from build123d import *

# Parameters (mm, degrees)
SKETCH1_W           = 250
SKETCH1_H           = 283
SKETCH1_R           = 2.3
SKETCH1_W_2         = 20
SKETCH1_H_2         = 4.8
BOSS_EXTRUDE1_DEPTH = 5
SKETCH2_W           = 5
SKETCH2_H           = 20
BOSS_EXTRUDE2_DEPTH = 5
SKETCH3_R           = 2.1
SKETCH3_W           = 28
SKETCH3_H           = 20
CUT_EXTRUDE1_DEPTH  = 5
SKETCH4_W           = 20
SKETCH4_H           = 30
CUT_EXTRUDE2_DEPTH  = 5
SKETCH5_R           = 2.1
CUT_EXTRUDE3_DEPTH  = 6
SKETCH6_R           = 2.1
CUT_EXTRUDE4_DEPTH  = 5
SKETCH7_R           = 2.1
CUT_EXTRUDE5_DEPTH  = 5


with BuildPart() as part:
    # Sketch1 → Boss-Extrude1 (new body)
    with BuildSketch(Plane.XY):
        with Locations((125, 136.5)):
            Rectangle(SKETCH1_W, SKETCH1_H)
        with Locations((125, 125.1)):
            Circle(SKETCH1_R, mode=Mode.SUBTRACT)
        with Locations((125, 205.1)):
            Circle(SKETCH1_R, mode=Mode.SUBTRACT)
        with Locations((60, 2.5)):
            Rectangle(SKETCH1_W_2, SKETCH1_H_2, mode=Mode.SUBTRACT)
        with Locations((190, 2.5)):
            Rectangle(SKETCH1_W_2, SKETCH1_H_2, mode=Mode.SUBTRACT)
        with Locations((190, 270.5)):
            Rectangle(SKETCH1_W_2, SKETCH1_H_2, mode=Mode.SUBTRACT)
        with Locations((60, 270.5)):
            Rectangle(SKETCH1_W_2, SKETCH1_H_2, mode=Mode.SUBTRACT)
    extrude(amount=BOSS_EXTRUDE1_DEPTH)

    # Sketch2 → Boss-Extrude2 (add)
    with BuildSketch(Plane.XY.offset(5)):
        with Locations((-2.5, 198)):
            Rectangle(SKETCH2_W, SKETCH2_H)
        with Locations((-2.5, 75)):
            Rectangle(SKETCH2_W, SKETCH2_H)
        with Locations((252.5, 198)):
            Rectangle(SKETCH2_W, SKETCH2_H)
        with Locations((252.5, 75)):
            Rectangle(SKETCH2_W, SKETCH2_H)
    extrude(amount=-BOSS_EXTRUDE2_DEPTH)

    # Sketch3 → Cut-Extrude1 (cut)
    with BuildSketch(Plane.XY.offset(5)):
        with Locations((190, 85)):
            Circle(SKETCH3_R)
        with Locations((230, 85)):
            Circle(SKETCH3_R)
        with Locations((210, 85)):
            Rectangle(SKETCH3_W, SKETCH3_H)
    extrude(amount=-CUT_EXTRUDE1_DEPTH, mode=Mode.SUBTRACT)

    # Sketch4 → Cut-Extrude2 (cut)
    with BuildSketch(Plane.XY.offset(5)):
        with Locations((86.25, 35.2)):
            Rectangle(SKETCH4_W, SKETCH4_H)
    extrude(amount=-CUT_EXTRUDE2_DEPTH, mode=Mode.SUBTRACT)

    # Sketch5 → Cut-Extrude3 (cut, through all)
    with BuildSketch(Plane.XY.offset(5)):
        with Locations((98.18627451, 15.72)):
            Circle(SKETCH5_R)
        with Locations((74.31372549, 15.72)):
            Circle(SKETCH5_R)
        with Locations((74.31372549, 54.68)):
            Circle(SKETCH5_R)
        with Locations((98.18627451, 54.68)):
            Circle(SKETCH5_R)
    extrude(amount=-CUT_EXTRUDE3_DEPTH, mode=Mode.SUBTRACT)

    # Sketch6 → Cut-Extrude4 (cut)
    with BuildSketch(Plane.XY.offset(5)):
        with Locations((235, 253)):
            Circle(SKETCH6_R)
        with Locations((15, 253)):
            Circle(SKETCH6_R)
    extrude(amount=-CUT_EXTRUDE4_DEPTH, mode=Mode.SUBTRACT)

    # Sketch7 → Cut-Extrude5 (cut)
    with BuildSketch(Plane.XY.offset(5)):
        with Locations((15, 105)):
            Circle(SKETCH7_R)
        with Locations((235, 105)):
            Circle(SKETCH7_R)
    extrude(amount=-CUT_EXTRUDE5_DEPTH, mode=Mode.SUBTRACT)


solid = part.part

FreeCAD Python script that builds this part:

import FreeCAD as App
import Part
import Sketcher
Q = App.Units.Quantity

doc = App.newDocument("Part")
body = doc.addObject("PartDesign::Body", "Body")

# Sketch on XY plane
sketch1 = body.newObject("Sketcher::SketchObject", "Sketch")
sketch1.AttachmentSupport = (doc.getObject("XY_Plane"), [""])
sketch1.MapMode = "FlatFace"
sketch1.addGeometry(Part.LineSegment(App.Vector(0, 278, 0), App.Vector(0, -5, 0)), False)
sketch1.addGeometry(Part.LineSegment(App.Vector(0, -5, 0), App.Vector(250, -5, 0)), False)
sketch1.addGeometry(Part.LineSegment(App.Vector(250, -5, 0), App.Vector(250, 278, 0)), False)
sketch1.addGeometry(Part.LineSegment(App.Vector(250, 278, 0), App.Vector(0, 278, 0)), False)
sketch1.addGeometry(Part.LineSegment(App.Vector(70, 0.1, 0), App.Vector(50, 0.1, 0)), False)
sketch1.addGeometry(Part.LineSegment(App.Vector(50, 0.1, 0), App.Vector(50, 4.9, 0)), False)
sketch1.addGeometry(Part.LineSegment(App.Vector(50, 4.9, 0), App.Vector(70, 4.9, 0)), False)
sketch1.addGeometry(Part.LineSegment(App.Vector(70, 4.9, 0), App.Vector(70, 0.1, 0)), False)
sketch1.addGeometry(Part.LineSegment(App.Vector(200, 0.1, 0), App.Vector(180, 0.1, 0)), False)
sketch1.addGeometry(Part.LineSegment(App.Vector(180, 0.1, 0), App.Vector(180, 4.9, 0)), False)
sketch1.addGeometry(Part.LineSegment(App.Vector(180, 4.9, 0), App.Vector(200, 4.9, 0)), False)
sketch1.addGeometry(Part.LineSegment(App.Vector(200, 4.9, 0), App.Vector(200, 0.1, 0)), False)
sketch1.addGeometry(Part.Circle(App.Vector(125, 125.1, 0), App.Vector(0, 0, 1), 2.3), False)
sketch1.addGeometry(Part.LineSegment(App.Vector(70, 268.1, 0), App.Vector(50, 268.1, 0)), False)
sketch1.addGeometry(Part.LineSegment(App.Vector(50, 268.1, 0), App.Vector(50, 272.9, 0)), False)
sketch1.addGeometry(Part.LineSegment(App.Vector(50, 272.9, 0), App.Vector(70, 272.9, 0)), False)
sketch1.addGeometry(Part.LineSegment(App.Vector(70, 272.9, 0), App.Vector(70, 268.1, 0)), False)
sketch1.addGeometry(Part.Circle(App.Vector(125, 205.1, 0), App.Vector(0, 0, 1), 2.3), False)
sketch1.addGeometry(Part.LineSegment(App.Vector(200, 268.1, 0), App.Vector(180, 268.1, 0)), False)
sketch1.addGeometry(Part.LineSegment(App.Vector(180, 268.1, 0), App.Vector(180, 272.9, 0)), False)
sketch1.addGeometry(Part.LineSegment(App.Vector(180, 272.9, 0), App.Vector(200, 272.9, 0)), False)
sketch1.addGeometry(Part.LineSegment(App.Vector(200, 272.9, 0), App.Vector(200, 268.1, 0)), False)
sketch1.addConstraint(Sketcher.Constraint("Coincident", 0, 2, 1, 1))
sketch1.addConstraint(Sketcher.Constraint("Coincident", 1, 2, 2, 1))
sketch1.addConstraint(Sketcher.Constraint("Coincident", 2, 2, 3, 1))
sketch1.addConstraint(Sketcher.Constraint("Coincident", 3, 2, 0, 1))
sketch1.addConstraint(Sketcher.Constraint("Coincident", 4, 2, 5, 1))
sketch1.addConstraint(Sketcher.Constraint("Coincident", 5, 2, 6, 1))
sketch1.addConstraint(Sketcher.Constraint("Coincident", 6, 2, 7, 1))
sketch1.addConstraint(Sketcher.Constraint("Coincident", 7, 2, 4, 1))
sketch1.addConstraint(Sketcher.Constraint("Coincident", 8, 2, 9, 1))
sketch1.addConstraint(Sketcher.Constraint("Coincident", 9, 2, 10, 1))
sketch1.addConstraint(Sketcher.Constraint("Coincident", 10, 2, 11, 1))
sketch1.addConstraint(Sketcher.Constraint("Coincident", 11, 2, 8, 1))
sketch1.addConstraint(Sketcher.Constraint("Coincident", 13, 2, 14, 1))
sketch1.addConstraint(Sketcher.Constraint("Coincident", 14, 2, 15, 1))
sketch1.addConstraint(Sketcher.Constraint("Coincident", 15, 2, 16, 1))
sketch1.addConstraint(Sketcher.Constraint("Coincident", 16, 2, 13, 1))
sketch1.addConstraint(Sketcher.Constraint("Coincident", 18, 2, 19, 1))
sketch1.addConstraint(Sketcher.Constraint("Coincident", 19, 2, 20, 1))
sketch1.addConstraint(Sketcher.Constraint("Coincident", 20, 2, 21, 1))
sketch1.addConstraint(Sketcher.Constraint("Coincident", 21, 2, 18, 1))
sketch1.addConstraint(Sketcher.Constraint("Vertical", 0))
sketch1.addConstraint(Sketcher.Constraint("Horizontal", 1))
sketch1.addConstraint(Sketcher.Constraint("Vertical", 2))
sketch1.addConstraint(Sketcher.Constraint("Horizontal", 3))
sketch1.addConstraint(Sketcher.Constraint("Horizontal", 4))
sketch1.addConstraint(Sketcher.Constraint("Vertical", 5))
sketch1.addConstraint(Sketcher.Constraint("Horizontal", 6))
sketch1.addConstraint(Sketcher.Constraint("Vertical", 7))
sketch1.addConstraint(Sketcher.Constraint("Horizontal", 8))
sketch1.addConstraint(Sketcher.Constraint("Vertical", 9))
sketch1.addConstraint(Sketcher.Constraint("Horizontal", 10))
sketch1.addConstraint(Sketcher.Constraint("Vertical", 11))
sketch1.addConstraint(Sketcher.Constraint("Horizontal", 13))
sketch1.addConstraint(Sketcher.Constraint("Vertical", 14))
sketch1.addConstraint(Sketcher.Constraint("Horizontal", 15))
sketch1.addConstraint(Sketcher.Constraint("Vertical", 16))
sketch1.addConstraint(Sketcher.Constraint("Horizontal", 18))
sketch1.addConstraint(Sketcher.Constraint("Vertical", 19))
sketch1.addConstraint(Sketcher.Constraint("Horizontal", 20))
sketch1.addConstraint(Sketcher.Constraint("Vertical", 21))
sketch1.addConstraint(Sketcher.Constraint("Equal", 12, 17))
sketch1.addConstraint(Sketcher.Constraint("PointOnObject", 0, 2, -2))
sketch1.addConstraint(Sketcher.Constraint("Horizontal", 7, 2, 8, 2))
sketch1.addConstraint(Sketcher.Constraint("Horizontal", 6, 2, 9, 2))
sketch1.addConstraint(Sketcher.Constraint("Horizontal", 16, 2, 18, 2))
sketch1.addConstraint(Sketcher.Constraint("Horizontal", 15, 2, 19, 2))
sketch1.addConstraint(Sketcher.Constraint("Vertical", 12, 3, 17, 3))
sketch1.addConstraint(Sketcher.Constraint("Vertical", 5, 2, 13, 2))
sketch1.addConstraint(Sketcher.Constraint("Vertical", 7, 2, 15, 2))
sketch1.addConstraint(Sketcher.Constraint("Vertical", 9, 2, 18, 2))
sketch1.addConstraint(Sketcher.Constraint("Vertical", 11, 2, 20, 2))
sketch1.addConstraint(Sketcher.Constraint("Equal", 6, 8))
sketch1.addConstraint(Sketcher.Constraint("Equal", 11, 14))
sketch1.addConstraint(Sketcher.Constraint("Diameter", 12, Q("4.6 mm")))
sketch1.addConstraint(Sketcher.Constraint("DistanceX", 1, 1, 1, 2, Q("250 mm")))
sketch1.addConstraint(Sketcher.Constraint("DistanceX", 4, 2, 4, 1, Q("20 mm")))
sketch1.addConstraint(Sketcher.Constraint("DistanceY", 0, 2, 0, 1, Q("283 mm")))
sketch1.addConstraint(Sketcher.Constraint("DistanceY", 5, 1, 5, 2, Q("4.8 mm")))
sketch1.addConstraint(Sketcher.Constraint("DistanceX", -1, 1, 12, 3, Q("125 mm")))
sketch1.addConstraint(Sketcher.Constraint("DistanceY", 0, 2, -1, 1, Q("5 mm")))
sketch1.addConstraint(Sketcher.Constraint("DistanceX", -1, 1, 4, 2, Q("50 mm")))
sketch1.addConstraint(Sketcher.Constraint("DistanceX", -1, 1, 8, 2, Q("180 mm")))
sketch1.addConstraint(Sketcher.Constraint("DistanceY", 12, 3, 17, 3, Q("80 mm")))
sketch1.addConstraint(Sketcher.Constraint("DistanceY", 4, 2, 12, 3, Q("125 mm")))
sketch1.addConstraint(Sketcher.Constraint("DistanceY", 17, 3, 13, 2, Q("63 mm")))
sketch1.addConstraint(Sketcher.Constraint("DistanceY", -1, 1, 12, 3, Q("125.1 mm")))
pad1 = body.newObject("PartDesign::Pad", "Pad")
pad1.Profile = sketch1
pad1.Length = 5

# Sketch on XY plane
sketch2 = body.newObject("Sketcher::SketchObject", "Sketch001")
sketch2.AttachmentSupport = (doc.getObject("XY_Plane"), [""])
sketch2.MapMode = "FlatFace"
sketch2.AttachmentOffset = App.Placement(App.Vector(0, 0, 5), App.Rotation())
sketch2.addGeometry(Part.LineSegment(App.Vector(-5, 208, 0), App.Vector(-5, 188, 0)), False)
sketch2.addGeometry(Part.LineSegment(App.Vector(-5, 188, 0), App.Vector(0, 188, 0)), False)
sketch2.addGeometry(Part.LineSegment(App.Vector(0, 188, 0), App.Vector(0, 208, 0)), False)
sketch2.addGeometry(Part.LineSegment(App.Vector(0, 208, 0), App.Vector(-5, 208, 0)), False)
sketch2.addGeometry(Part.LineSegment(App.Vector(-5, 85, 0), App.Vector(-5, 65, 0)), False)
sketch2.addGeometry(Part.LineSegment(App.Vector(-5, 65, 0), App.Vector(0, 65, 0)), False)
sketch2.addGeometry(Part.LineSegment(App.Vector(0, 65, 0), App.Vector(0, 85, 0)), False)
sketch2.addGeometry(Part.LineSegment(App.Vector(0, 85, 0), App.Vector(-5, 85, 0)), False)
sketch2.addGeometry(Part.LineSegment(App.Vector(250, 208, 0), App.Vector(250, 188, 0)), False)
sketch2.addGeometry(Part.LineSegment(App.Vector(250, 188, 0), App.Vector(255, 188, 0)), False)
sketch2.addGeometry(Part.LineSegment(App.Vector(255, 188, 0), App.Vector(255, 208, 0)), False)
sketch2.addGeometry(Part.LineSegment(App.Vector(255, 208, 0), App.Vector(250, 208, 0)), False)
sketch2.addGeometry(Part.LineSegment(App.Vector(250, 85, 0), App.Vector(250, 65, 0)), False)
sketch2.addGeometry(Part.LineSegment(App.Vector(250, 65, 0), App.Vector(255, 65, 0)), False)
sketch2.addGeometry(Part.LineSegment(App.Vector(255, 65, 0), App.Vector(255, 85, 0)), False)
sketch2.addGeometry(Part.LineSegment(App.Vector(255, 85, 0), App.Vector(250, 85, 0)), False)
sketch2.addConstraint(Sketcher.Constraint("Coincident", 0, 2, 1, 1))
sketch2.addConstraint(Sketcher.Constraint("Coincident", 1, 2, 2, 1))
sketch2.addConstraint(Sketcher.Constraint("Coincident", 2, 2, 3, 1))
sketch2.addConstraint(Sketcher.Constraint("Coincident", 3, 2, 0, 1))
sketch2.addConstraint(Sketcher.Constraint("Coincident", 4, 2, 5, 1))
sketch2.addConstraint(Sketcher.Constraint("Coincident", 5, 2, 6, 1))
sketch2.addConstraint(Sketcher.Constraint("Coincident", 6, 2, 7, 1))
sketch2.addConstraint(Sketcher.Constraint("Coincident", 7, 2, 4, 1))
sketch2.addConstraint(Sketcher.Constraint("Coincident", 8, 2, 9, 1))
sketch2.addConstraint(Sketcher.Constraint("Coincident", 9, 2, 10, 1))
sketch2.addConstraint(Sketcher.Constraint("Coincident", 10, 2, 11, 1))
sketch2.addConstraint(Sketcher.Constraint("Coincident", 11, 2, 8, 1))
sketch2.addConstraint(Sketcher.Constraint("Coincident", 12, 2, 13, 1))
sketch2.addConstraint(Sketcher.Constraint("Coincident", 13, 2, 14, 1))
sketch2.addConstraint(Sketcher.Constraint("Coincident", 14, 2, 15, 1))
sketch2.addConstraint(Sketcher.Constraint("Coincident", 15, 2, 12, 1))
sketch2.addConstraint(Sketcher.Constraint("Vertical", 0))
sketch2.addConstraint(Sketcher.Constraint("Horizontal", 1))
sketch2.addConstraint(Sketcher.Constraint("Vertical", 2))
sketch2.addConstraint(Sketcher.Constraint("Horizontal", 3))
sketch2.addConstraint(Sketcher.Constraint("Vertical", 4))
sketch2.addConstraint(Sketcher.Constraint("Horizontal", 5))
sketch2.addConstraint(Sketcher.Constraint("Vertical", 6))
sketch2.addConstraint(Sketcher.Constraint("Horizontal", 7))
sketch2.addConstraint(Sketcher.Constraint("Vertical", 8))
sketch2.addConstraint(Sketcher.Constraint("Horizontal", 9))
sketch2.addConstraint(Sketcher.Constraint("Vertical", 10))
sketch2.addConstraint(Sketcher.Constraint("Horizontal", 11))
sketch2.addConstraint(Sketcher.Constraint("Vertical", 12))
sketch2.addConstraint(Sketcher.Constraint("Horizontal", 13))
sketch2.addConstraint(Sketcher.Constraint("Vertical", 14))
sketch2.addConstraint(Sketcher.Constraint("Horizontal", 15))
sketch2.addConstraint(Sketcher.Constraint("PointOnObject", 1, 2, -2))
sketch2.addConstraint(Sketcher.Constraint("PointOnObject", 5, 2, -2))
sketch2.addConstraint(Sketcher.Constraint("Horizontal", 1, 2, 8, 2))
sketch2.addConstraint(Sketcher.Constraint("Horizontal", 3, 2, 10, 2))
sketch2.addConstraint(Sketcher.Constraint("Horizontal", 5, 2, 12, 2))
sketch2.addConstraint(Sketcher.Constraint("Horizontal", 7, 2, 14, 2))
sketch2.addConstraint(Sketcher.Constraint("Vertical", 3, 2, 4, 2))
sketch2.addConstraint(Sketcher.Constraint("Vertical", 11, 2, 12, 2))
sketch2.addConstraint(Sketcher.Constraint("Vertical", 10, 2, 13, 2))
sketch2.addConstraint(Sketcher.Constraint("Equal", 7, 9))
sketch2.addConstraint(Sketcher.Constraint("Equal", 2, 4))
sketch2.addConstraint(Sketcher.Constraint("DistanceX", 1, 1, 1, 2, Q("5 mm")))
sketch2.addConstraint(Sketcher.Constraint("DistanceY", 0, 2, 0, 1, Q("20 mm")))
sketch2.addConstraint(Sketcher.Constraint("DistanceY", -1, 1, 0, 2, Q("188 mm")))
sketch2.addConstraint(Sketcher.Constraint("DistanceY", -1, 1, 4, 2, Q("65 mm")))
sketch2.addConstraint(Sketcher.Constraint("DistanceX", -1, 1, 8, 2, Q("250 mm")))
pad2 = body.newObject("PartDesign::Pad", "Pad001")
pad2.Profile = sketch2
pad2.Length = 5
pad2.Reversed = True

# Sketch on XY plane
sketch3 = body.newObject("Sketcher::SketchObject", "Sketch002")
sketch3.AttachmentSupport = (doc.getObject("XY_Plane"), [""])
sketch3.MapMode = "FlatFace"
sketch3.AttachmentOffset = App.Placement(App.Vector(0, 0, 5), App.Rotation())
sketch3.addGeometry(Part.Circle(App.Vector(190, 85, 0), App.Vector(0, 0, 1), 2.1), False)
sketch3.addGeometry(Part.Circle(App.Vector(230, 85, 0), App.Vector(0, 0, 1), 2.1), False)
sketch3.addGeometry(Part.LineSegment(App.Vector(196, 95, 0), App.Vector(196, 75, 0)), False)
sketch3.addGeometry(Part.LineSegment(App.Vector(196, 75, 0), App.Vector(224, 75, 0)), False)
sketch3.addGeometry(Part.LineSegment(App.Vector(224, 75, 0), App.Vector(224, 95, 0)), False)
sketch3.addGeometry(Part.LineSegment(App.Vector(224, 95, 0), App.Vector(196, 95, 0)), False)
sketch3.addConstraint(Sketcher.Constraint("Coincident", 2, 2, 3, 1))
sketch3.addConstraint(Sketcher.Constraint("Coincident", 3, 2, 4, 1))
sketch3.addConstraint(Sketcher.Constraint("Coincident", 4, 2, 5, 1))
sketch3.addConstraint(Sketcher.Constraint("Coincident", 5, 2, 2, 1))
sketch3.addConstraint(Sketcher.Constraint("Vertical", 2))
sketch3.addConstraint(Sketcher.Constraint("Horizontal", 3))
sketch3.addConstraint(Sketcher.Constraint("Vertical", 4))
sketch3.addConstraint(Sketcher.Constraint("Horizontal", 5))
sketch3.addConstraint(Sketcher.Constraint("Equal", 0, 1))
sketch3.addConstraint(Sketcher.Constraint("Horizontal", 0, 3, 1, 3))
sketch3.addConstraint(Sketcher.Constraint("Diameter", 0, Q("4.2 mm")))
sketch3.addConstraint(Sketcher.Constraint("DistanceX", 3, 1, 3, 2, Q("28 mm")))
sketch3.addConstraint(Sketcher.Constraint("DistanceY", 2, 2, 2, 1, Q("20 mm")))
sketch3.addConstraint(Sketcher.Constraint("DistanceX", -1, 1, 0, 3, Q("190 mm")))
sketch3.addConstraint(Sketcher.Constraint("DistanceY", -1, 1, 0, 3, Q("85 mm")))
sketch3.addConstraint(Sketcher.Constraint("DistanceX", -1, 1, 1, 3, Q("230 mm")))
sketch3.addConstraint(Sketcher.Constraint("DistanceX", -1, 1, 2, 2, Q("196 mm")))
sketch3.addConstraint(Sketcher.Constraint("DistanceY", -1, 1, 2, 2, Q("75 mm")))
pocket1 = body.newObject("PartDesign::Pocket", "Pocket")
pocket1.Profile = sketch3
pocket1.Length = 5

# Sketch on XY plane
sketch4 = body.newObject("Sketcher::SketchObject", "Sketch003")
sketch4.AttachmentSupport = (doc.getObject("XY_Plane"), [""])
sketch4.MapMode = "FlatFace"
sketch4.AttachmentOffset = App.Placement(App.Vector(0, 0, 5), App.Rotation())
sketch4.addGeometry(Part.LineSegment(App.Vector(76, 50, 0), App.Vector(76, 20, 0)), False)
sketch4.addGeometry(Part.LineSegment(App.Vector(76, 20, 0), App.Vector(96, 20, 0)), False)
sketch4.addGeometry(Part.LineSegment(App.Vector(96, 20, 0), App.Vector(96, 50, 0)), False)
sketch4.addGeometry(Part.LineSegment(App.Vector(96, 50, 0), App.Vector(76, 50, 0)), False)
sketch4.addConstraint(Sketcher.Constraint("Coincident", 0, 2, 1, 1))
sketch4.addConstraint(Sketcher.Constraint("Coincident", 1, 2, 2, 1))
sketch4.addConstraint(Sketcher.Constraint("Coincident", 2, 2, 3, 1))
sketch4.addConstraint(Sketcher.Constraint("Coincident", 3, 2, 0, 1))
sketch4.addConstraint(Sketcher.Constraint("Vertical", 0))
sketch4.addConstraint(Sketcher.Constraint("Horizontal", 1))
sketch4.addConstraint(Sketcher.Constraint("Vertical", 2))
sketch4.addConstraint(Sketcher.Constraint("Horizontal", 3))
sketch4.addConstraint(Sketcher.Constraint("DistanceX", 1, 1, 1, 2, Q("20 mm")))
sketch4.addConstraint(Sketcher.Constraint("DistanceY", 0, 2, 0, 1, Q("30 mm")))
sketch4.addConstraint(Sketcher.Constraint("DistanceY", -1, 1, 0, 2, Q("20.2 mm")))
sketch4.addConstraint(Sketcher.Constraint("DistanceX", -1, 1, 0, 2, Q("76.25 mm")))
pocket2 = body.newObject("PartDesign::Pocket", "Pocket001")
pocket2.Profile = sketch4
pocket2.Length = 5

# Sketch on XY plane
sketch5 = body.newObject("Sketcher::SketchObject", "Sketch004")
sketch5.AttachmentSupport = (doc.getObject("XY_Plane"), [""])
sketch5.MapMode = "FlatFace"
sketch5.AttachmentOffset = App.Placement(App.Vector(0, 0, 5), App.Rotation())
sketch5.addGeometry(Part.Circle(App.Vector(98.2, 15.7, 0), App.Vector(0, 0, 1), 2.1), False)
sketch5.addGeometry(Part.Circle(App.Vector(74.3, 15.7, 0), App.Vector(0, 0, 1), 2.1), False)
sketch5.addGeometry(Part.Circle(App.Vector(74.3, 54.7, 0), App.Vector(0, 0, 1), 2.1), False)
sketch5.addGeometry(Part.Circle(App.Vector(98.2, 54.7, 0), App.Vector(0, 0, 1), 2.1), False)
sketch5.addConstraint(Sketcher.Constraint("Equal", 0, 1))
sketch5.addConstraint(Sketcher.Constraint("Equal", 1, 2))
sketch5.addConstraint(Sketcher.Constraint("Equal", 2, 3))
sketch5.addConstraint(Sketcher.Constraint("Horizontal", 0, 3, 1, 3))
sketch5.addConstraint(Sketcher.Constraint("Horizontal", 2, 3, 3, 3))
sketch5.addConstraint(Sketcher.Constraint("Vertical", 1, 3, 2, 3))
sketch5.addConstraint(Sketcher.Constraint("Vertical", 0, 3, 3, 3))
sketch5.addConstraint(Sketcher.Constraint("Diameter", 0, Q("4.2 mm")))
sketch5.addConstraint(Sketcher.Constraint("DistanceY", -1, 1, 0, 3, Q("15.72 mm")))
sketch5.addConstraint(Sketcher.Constraint("DistanceY", -1, 1, 2, 3, Q("54.68 mm")))
sketch5.addConstraint(Sketcher.Constraint("DistanceX", 1, 3, 0, 3, Q("23.872549 mm")))
sketch5.addConstraint(Sketcher.Constraint("DistanceX", -1, 1, 0, 3, Q("98.186275 mm")))
pocket3 = body.newObject("PartDesign::Pocket", "Pocket002")
pocket3.Profile = sketch5
pocket3.Type = "ThroughAll"

# Sketch on XY plane
sketch6 = body.newObject("Sketcher::SketchObject", "Sketch005")
sketch6.AttachmentSupport = (doc.getObject("XY_Plane"), [""])
sketch6.MapMode = "FlatFace"
sketch6.AttachmentOffset = App.Placement(App.Vector(0, 0, 5), App.Rotation())
sketch6.addGeometry(Part.Circle(App.Vector(235, 253, 0), App.Vector(0, 0, 1), 2.1), False)
sketch6.addGeometry(Part.Circle(App.Vector(15, 253, 0), App.Vector(0, 0, 1), 2.1), False)
sketch6.addConstraint(Sketcher.Constraint("Equal", 0, 1))
sketch6.addConstraint(Sketcher.Constraint("Horizontal", 0, 3, 1, 3))
sketch6.addConstraint(Sketcher.Constraint("Diameter", 0, Q("4.2 mm")))
sketch6.addConstraint(Sketcher.Constraint("DistanceX", -1, 1, 0, 3, Q("235 mm")))
sketch6.addConstraint(Sketcher.Constraint("DistanceY", -1, 1, 0, 3, Q("253 mm")))
sketch6.addConstraint(Sketcher.Constraint("DistanceX", -1, 1, 1, 3, Q("15 mm")))
pocket4 = body.newObject("PartDesign::Pocket", "Pocket003")
pocket4.Profile = sketch6
pocket4.Length = 5

# Sketch on XY plane
sketch7 = body.newObject("Sketcher::SketchObject", "Sketch006")
sketch7.AttachmentSupport = (doc.getObject("XY_Plane"), [""])
sketch7.MapMode = "FlatFace"
sketch7.AttachmentOffset = App.Placement(App.Vector(0, 0, 5), App.Rotation())
sketch7.addGeometry(Part.Circle(App.Vector(15, 105, 0), App.Vector(0, 0, 1), 2.1), False)
sketch7.addGeometry(Part.Circle(App.Vector(235, 105, 0), App.Vector(0, 0, 1), 2.1), False)
sketch7.addConstraint(Sketcher.Constraint("Equal", 0, 1))
sketch7.addConstraint(Sketcher.Constraint("Horizontal", 0, 3, 1, 3))
sketch7.addConstraint(Sketcher.Constraint("Diameter", 0, Q("4.2 mm")))
sketch7.addConstraint(Sketcher.Constraint("DistanceX", -1, 1, 0, 3, Q("15 mm")))
sketch7.addConstraint(Sketcher.Constraint("DistanceY", -1, 1, 0, 3, Q("105 mm")))
sketch7.addConstraint(Sketcher.Constraint("DistanceX", -1, 1, 1, 3, Q("235 mm")))
pocket5 = body.newObject("PartDesign::Pocket", "Pocket004")
pocket5.Profile = sketch7
pocket5.Length = 5

doc.recompute()
